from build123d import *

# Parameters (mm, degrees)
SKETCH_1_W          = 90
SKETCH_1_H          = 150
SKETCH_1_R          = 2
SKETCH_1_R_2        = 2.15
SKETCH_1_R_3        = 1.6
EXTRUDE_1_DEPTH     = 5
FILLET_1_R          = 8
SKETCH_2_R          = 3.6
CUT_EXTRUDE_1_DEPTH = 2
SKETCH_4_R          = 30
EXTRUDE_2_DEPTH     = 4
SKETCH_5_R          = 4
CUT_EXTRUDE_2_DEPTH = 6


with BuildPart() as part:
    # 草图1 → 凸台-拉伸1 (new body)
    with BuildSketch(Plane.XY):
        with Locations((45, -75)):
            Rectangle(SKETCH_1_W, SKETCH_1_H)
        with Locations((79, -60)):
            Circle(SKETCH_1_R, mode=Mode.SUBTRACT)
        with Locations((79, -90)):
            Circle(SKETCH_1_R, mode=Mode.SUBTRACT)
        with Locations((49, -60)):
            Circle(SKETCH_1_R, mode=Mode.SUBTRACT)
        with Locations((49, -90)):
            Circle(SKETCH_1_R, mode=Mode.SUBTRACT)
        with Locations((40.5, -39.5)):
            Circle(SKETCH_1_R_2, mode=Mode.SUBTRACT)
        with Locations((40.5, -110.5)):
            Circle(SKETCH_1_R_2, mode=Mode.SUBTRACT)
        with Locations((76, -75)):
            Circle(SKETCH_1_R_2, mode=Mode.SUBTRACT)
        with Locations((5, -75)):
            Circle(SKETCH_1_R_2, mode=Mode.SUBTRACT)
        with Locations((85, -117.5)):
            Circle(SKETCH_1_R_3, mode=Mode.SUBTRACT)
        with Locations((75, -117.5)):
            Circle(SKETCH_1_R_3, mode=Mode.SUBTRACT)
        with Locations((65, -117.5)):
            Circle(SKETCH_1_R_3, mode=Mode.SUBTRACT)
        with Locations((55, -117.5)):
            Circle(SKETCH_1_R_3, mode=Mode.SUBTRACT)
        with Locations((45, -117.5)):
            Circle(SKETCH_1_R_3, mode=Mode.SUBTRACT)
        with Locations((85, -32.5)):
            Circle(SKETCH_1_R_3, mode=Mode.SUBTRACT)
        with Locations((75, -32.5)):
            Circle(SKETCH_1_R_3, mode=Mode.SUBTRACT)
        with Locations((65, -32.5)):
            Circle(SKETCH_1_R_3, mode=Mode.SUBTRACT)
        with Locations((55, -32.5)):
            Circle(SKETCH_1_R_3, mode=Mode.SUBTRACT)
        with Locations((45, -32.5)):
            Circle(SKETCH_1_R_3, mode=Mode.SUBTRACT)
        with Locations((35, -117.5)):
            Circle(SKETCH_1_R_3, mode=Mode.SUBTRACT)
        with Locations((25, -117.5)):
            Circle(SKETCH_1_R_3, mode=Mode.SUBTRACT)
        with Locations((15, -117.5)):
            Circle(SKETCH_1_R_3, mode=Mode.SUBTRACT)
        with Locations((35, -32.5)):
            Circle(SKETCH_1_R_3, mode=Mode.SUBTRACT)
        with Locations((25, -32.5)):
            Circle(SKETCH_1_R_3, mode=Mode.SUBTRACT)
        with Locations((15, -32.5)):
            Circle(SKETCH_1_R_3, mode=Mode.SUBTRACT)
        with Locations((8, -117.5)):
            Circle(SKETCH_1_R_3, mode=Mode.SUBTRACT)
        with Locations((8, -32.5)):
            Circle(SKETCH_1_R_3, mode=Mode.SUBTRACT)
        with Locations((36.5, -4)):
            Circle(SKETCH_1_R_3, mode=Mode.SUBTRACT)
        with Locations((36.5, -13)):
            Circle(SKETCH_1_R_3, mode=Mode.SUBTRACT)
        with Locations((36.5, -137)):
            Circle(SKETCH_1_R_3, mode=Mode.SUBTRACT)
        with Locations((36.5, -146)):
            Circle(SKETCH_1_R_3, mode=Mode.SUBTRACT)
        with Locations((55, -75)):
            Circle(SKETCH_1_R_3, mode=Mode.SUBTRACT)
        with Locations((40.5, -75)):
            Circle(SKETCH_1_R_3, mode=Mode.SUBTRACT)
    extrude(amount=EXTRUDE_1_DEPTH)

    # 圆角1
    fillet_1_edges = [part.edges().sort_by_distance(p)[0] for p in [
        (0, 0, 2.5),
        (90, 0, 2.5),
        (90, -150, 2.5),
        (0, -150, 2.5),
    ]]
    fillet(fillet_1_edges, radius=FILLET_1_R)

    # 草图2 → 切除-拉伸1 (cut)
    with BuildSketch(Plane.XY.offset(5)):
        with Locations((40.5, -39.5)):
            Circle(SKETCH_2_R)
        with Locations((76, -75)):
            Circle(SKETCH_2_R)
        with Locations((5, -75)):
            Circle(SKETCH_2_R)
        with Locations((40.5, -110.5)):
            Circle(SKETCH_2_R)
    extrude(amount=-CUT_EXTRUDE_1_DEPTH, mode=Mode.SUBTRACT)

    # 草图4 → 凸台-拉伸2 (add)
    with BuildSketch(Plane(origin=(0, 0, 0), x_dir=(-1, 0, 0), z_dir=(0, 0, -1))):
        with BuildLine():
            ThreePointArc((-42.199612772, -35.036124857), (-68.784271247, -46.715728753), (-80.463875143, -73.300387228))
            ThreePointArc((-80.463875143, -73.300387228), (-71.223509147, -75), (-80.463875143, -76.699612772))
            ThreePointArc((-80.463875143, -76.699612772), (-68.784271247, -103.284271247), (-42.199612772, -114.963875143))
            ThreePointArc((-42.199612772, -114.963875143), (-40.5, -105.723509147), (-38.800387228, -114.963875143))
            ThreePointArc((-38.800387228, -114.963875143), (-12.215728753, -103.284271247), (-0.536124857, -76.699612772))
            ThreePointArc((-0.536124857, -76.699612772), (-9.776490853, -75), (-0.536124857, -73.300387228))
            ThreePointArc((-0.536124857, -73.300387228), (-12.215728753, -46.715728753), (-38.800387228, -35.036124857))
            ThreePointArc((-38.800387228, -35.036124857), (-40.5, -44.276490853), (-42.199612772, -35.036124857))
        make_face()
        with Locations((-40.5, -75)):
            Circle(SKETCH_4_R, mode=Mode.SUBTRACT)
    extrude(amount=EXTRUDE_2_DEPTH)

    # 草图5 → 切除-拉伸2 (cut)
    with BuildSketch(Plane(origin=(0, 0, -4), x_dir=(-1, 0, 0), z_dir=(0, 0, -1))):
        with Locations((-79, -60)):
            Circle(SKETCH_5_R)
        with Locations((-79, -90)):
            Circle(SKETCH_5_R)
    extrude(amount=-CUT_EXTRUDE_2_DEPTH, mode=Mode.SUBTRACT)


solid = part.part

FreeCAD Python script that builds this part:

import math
import FreeCAD as App
import Part
import Sketcher
from FreeCAD import Vector


def edges_at(feature, points):
    """Names of the edges that pass closest to the given points."""
    edges = feature.Shape.Edges
    near = lambda p: min(range(len(edges)), key=lambda i: edges[i].distToShape(Part.Vertex(*p))[0])
    return sorted({f"Edge{near(p) + 1}" for p in points})


def add_polygon(sketch, points):
    """Adds a closed chain of lines whose ends are joined by coincident constraints."""
    first, n = sketch.GeometryCount, len(points)
    for a, b in zip(points, points[1:] + points[:1]):
        sketch.addGeometry(Part.LineSegment(App.Vector(*a, 0), App.Vector(*b, 0)), False)
    for i in range(n):
        sketch.addConstraint(Sketcher.Constraint("Coincident", first + i, 2, first + (i + 1) % n, 1))

doc = App.newDocument("Part")
body = doc.addObject("PartDesign::Body", "Body")

sketch1 = body.newObject("Sketcher::SketchObject", "Sketch")
sketch1.AttachmentSupport = (doc.getObject("XY_Plane"), [""])
sketch1.MapMode = "FlatFace"
add_polygon(sketch1, [(0, 0), (0, -150), (90, -150), (90, 0)])
sketch1.addGeometry(Part.Circle(Vector(8, -117.5, 0), Vector(0, 0, 1), 1.6), False)
sketch1.addGeometry(Part.Circle(Vector(15, -117.5, 0), Vector(0, 0, 1), 1.6), False)
sketch1.addGeometry(Part.Circle(Vector(36.5, -146, 0), Vector(0, 0, 1), 1.6), False)
sketch1.addGeometry(Part.Circle(Vector(36.5, -137, 0), Vector(0, 0, 1), 1.6), False)
sketch1.addGeometry(Part.Circle(Vector(25, -117.5, 0), Vector(0, 0, 1), 1.6), False)
sketch1.addGeometry(Part.Circle(Vector(35, -117.5, 0), Vector(0, 0, 1), 1.6), False)
sketch1.addGeometry(Part.Circle(Vector(40.5, -110.5, 0), Vector(0, 0, 1), 2.1), False)
sketch1.addGeometry(Part.Circle(Vector(45, -117.5, 0), Vector(0, 0, 1), 1.6), False)
sketch1.addGeometry(Part.Circle(Vector(55, -117.5, 0), Vector(0, 0, 1), 1.6), False)
sketch1.addGeometry(Part.Circle(Vector(65, -117.5, 0), Vector(0, 0, 1), 1.6), False)
sketch1.addGeometry(Part.Circle(Vector(75, -117.5, 0), Vector(0, 0, 1), 1.6), False)
sketch1.addGeometry(Part.Circle(Vector(85, -117.5, 0), Vector(0, 0, 1), 1.6), False)
sketch1.addGeometry(Part.Circle(Vector(49, -90, 0), Vector(0, 0, 1), 2), False)
sketch1.addGeometry(Part.Circle(Vector(79, -90, 0), Vector(0, 0, 1), 2), False)
sketch1.addGeometry(Part.Circle(Vector(5, -75, 0), Vector(0, 0, 1), 2.1), False)
sketch1.addGeometry(Part.Circle(Vector(40.5, -75, 0), Vector(0, 0, 1), 1.6), False)
sketch1.addGeometry(Part.Circle(Vector(40.5, -39.5, 0), Vector(0, 0, 1), 2.1), False)
sketch1.addGeometry(Part.Circle(Vector(8, -32.5, 0), Vector(0, 0, 1), 1.6), False)
sketch1.addGeometry(Part.Circle(Vector(15, -32.5, 0), Vector(0, 0, 1), 1.6), False)
sketch1.addGeometry(Part.Circle(Vector(25, -32.5, 0), Vector(0, 0, 1), 1.6), False)
sketch1.addGeometry(Part.Circle(Vector(35, -32.5, 0), Vector(0, 0, 1), 1.6), False)
sketch1.addGeometry(Part.Circle(Vector(36.5, -13, 0), Vector(0, 0, 1), 1.6), False)
sketch1.addGeometry(Part.Circle(Vector(36.5, -4, 0), Vector(0, 0, 1), 1.6), False)
sketch1.addGeometry(Part.Circle(Vector(55, -75, 0), Vector(0, 0, 1), 1.6), False)
sketch1.addGeometry(Part.Circle(Vector(49, -60, 0), Vector(0, 0, 1), 2), False)
sketch1.addGeometry(Part.Circle(Vector(76, -75, 0), Vector(0, 0, 1), 2.1), False)
sketch1.addGeometry(Part.Circle(Vector(79, -60, 0), Vector(0, 0, 1), 2), False)
sketch1.addGeometry(Part.Circle(Vector(45, -32.5, 0), Vector(0, 0, 1), 1.6), False)
sketch1.addGeometry(Part.Circle(Vector(55, -32.5, 0), Vector(0, 0, 1), 1.6), False)
sketch1.addGeometry(Part.Circle(Vector(65, -32.5, 0), Vector(0, 0, 1), 1.6), False)
sketch1.addGeometry(Part.Circle(Vector(75, -32.5, 0), Vector(0, 0, 1), 1.6), False)
sketch1.addGeometry(Part.Circle(Vector(85, -32.5, 0), Vector(0, 0, 1), 1.6), False)
sketch1.addConstraint([
    Sketcher.Constraint("Vertical", 0),
    Sketcher.Constraint("Horizontal", 1),
    Sketcher.Constraint("Vertical", 2),
    Sketcher.Constraint("Horizontal", 3),
    Sketcher.Constraint("Coincident", 3, 2, -1, 1),
    Sketcher.Constraint("Equal", 4, 5),
    Sketcher.Constraint("Equal", 5, 6),
    Sketcher.Constraint("Equal", 6, 7),
    Sketcher.Constraint("Equal", 7, 8),
    Sketcher.Constraint("Equal", 8, 9),
    Sketcher.Constraint("Equal", 9, 11),
    Sketcher.Constraint("Equal", 11, 12),
    Sketcher.Constraint("Equal", 12, 13),
    Sketcher.Constraint("Equal", 13, 14),
    Sketcher.Constraint("Equal", 14, 15),
    Sketcher.Constraint("Equal", 16, 17),
    Sketcher.Constraint("Equal", 10, 18),
    Sketcher.Constraint("Equal", 15, 19),
    Sketcher.Constraint("Equal", 18, 20),
    Sketcher.Constraint("Equal", 19, 21),
    Sketcher.Constraint("Equal", 21, 22),
    Sketcher.Constraint("Equal", 22, 23),
    Sketcher.Constraint("Equal", 23, 24),
    Sketcher.Constraint("Equal", 24, 25),
    Sketcher.Constraint("Equal", 25, 26),
    Sketcher.Constraint("Equal", 26, 27),
    Sketcher.Constraint("Equal", 17, 28),
    Sketcher.Constraint("Equal", 20, 29),
    Sketcher.Constraint("Equal", 28, 30),
    Sketcher.Constraint("Equal", 27, 31),
    Sketcher.Constraint("Equal", 31, 32),
    Sketcher.Constraint("Equal", 32, 33),
    Sketcher.Constraint("Equal", 33, 34),
    Sketcher.Constraint("Equal", 34, 35),
    Sketcher.Constraint("Horizontal", 4, 3, 5, 3),
    Sketcher.Constraint("Horizontal", 5, 3, 8, 3),
    Sketcher.Constraint("Horizontal", 8, 3, 9, 3),
    Sketcher.Constraint("Horizontal", 9, 3, 11, 3),
    Sketcher.Constraint("Horizontal", 11, 3, 12, 3),
    Sketcher.Constraint("Horizontal", 12, 3, 13, 3),
    Sketcher.Constraint("Horizontal", 13, 3, 14, 3),
    Sketcher.Constraint("Horizontal", 14, 3, 15, 3),
    Sketcher.Constraint("Horizontal", 16, 3, 17, 3),
    Sketcher.Constraint("Horizontal", 18, 3, 19, 3),
    Sketcher.Constraint("Horizontal", 21, 3, 22, 3),
    Sketcher.Constraint("Horizontal", 22, 3, 23, 3),
    Sketcher.Constraint("Horizontal", 23, 3, 24, 3),
    Sketcher.Constraint("Horizontal", 19, 3, 27, 3),
    Sketcher.Constraint("Horizontal", 27, 3, 29, 3),
    Sketcher.Constraint("Horizontal", 28, 3, 30, 3),
    Sketcher.Constraint("Horizontal", 24, 3, 31, 3),
    Sketcher.Constraint("Horizontal", 31, 3, 32, 3),
    Sketcher.Constraint("Horizontal", 32, 3, 33, 3),
    Sketcher.Constraint("Horizontal", 33, 3, 34, 3),
    Sketcher.Constraint("Horizontal", 34, 3, 35, 3),
    Sketcher.Constraint("Vertical", 6, 3, 7, 3),
    Sketcher.Constraint("Vertical", 10, 3, 19, 3),
    Sketcher.Constraint("Vertical", 19, 3, 20, 3),
    Sketcher.Constraint("Vertical", 4, 3, 21, 3),
    Sketcher.Constraint("Vertical", 5, 3, 22, 3),
    Sketcher.Constraint("Vertical", 8, 3, 23, 3),
    Sketcher.Constraint("Vertical", 9, 3, 24, 3),
    Sketcher.Constraint("Vertical", 7, 3, 25, 3),
    Sketcher.Constraint("Vertical", 25, 3, 26, 3),
    Sketcher.Constraint("Vertical", 12, 3, 27, 3),
    Sketcher.Constraint("Vertical", 16, 3, 28, 3),
    Sketcher.Constraint("Vertical", 17, 3, 30, 3),
    Sketcher.Constraint("Vertical", 11, 3, 31, 3),
    Sketcher.Constraint("Vertical", 27, 3, 32, 3),
    Sketcher.Constraint("Vertical", 13, 3, 33, 3),
    Sketcher.Constraint("Vertical", 14, 3, 34, 3),
    Sketcher.Constraint("Vertical", 15, 3, 35, 3),
    Sketcher.Constraint("Diameter", 16, 4.0),
    Sketcher.Constraint("Diameter", 4, 3.2),
    Sketcher.Constraint("Diameter", 10, 4.3),
    Sketcher.Constraint("DistanceX", 1, 1, 1, 2, 90.0),
    Sketcher.Constraint("DistanceY", 0, 2, 0, 1, 150.0),
    Sketcher.Constraint("DistanceX", -1, 1, 4, 3, 8.0),
    Sketcher.Constraint("DistanceX", -1, 1, 5, 3, 15.0),
    Sketcher.Constraint("DistanceY", 6, 3, -1, 1, 146.0),
    Sketcher.Constraint("DistanceY", 7, 3, -1, 1, 137.0),
    Sketcher.Constraint("DistanceX", -1, 1, 8, 3, 25.0),
    Sketcher.Constraint("DistanceX", -1, 1, 9, 3, 35.0),
    Sketcher.Constraint("DistanceX", -1, 1, 11, 3, 45.0),
    Sketcher.Constraint("DistanceX", -1, 1, 12, 3, 55.0),
    Sketcher.Constraint("DistanceX", -1, 1, 13, 3, 65.0),
    Sketcher.Constraint("DistanceX", -1, 1, 14, 3, 75.0),
    Sketcher.Constraint("DistanceX", -1, 1, 15, 3, 85.0),
    Sketcher.Constraint("DistanceX", -1, 1, 16, 3, 49.0),
    Sketcher.Constraint("DistanceY", 16, 3, -1, 1, 90.0),
    Sketcher.Constraint("DistanceX", -1, 1, 17, 3, 79.0),
    Sketcher.Constraint("DistanceX", -1, 1, 18, 3, 5.0),
    Sketcher.Constraint("DistanceY", 18, 3, -1, 1, 75.0),
    Sketcher.Constraint("DistanceY", 25, 3, -1, 1, 13.0),
    Sketcher.Constraint("DistanceY", 26, 3, -1, 1, 4.0),
    Sketcher.Constraint("DistanceY", 28, 3, -1, 1, 60.0),
    Sketcher.Constraint("DistanceX", -1, 1, 29, 3, 76.0),
    Sketcher.Constraint("DistanceY", 9, 3, 10, 3, 7.0),
    Sketcher.Constraint("DistanceX", 7, 3, 10, 3, 4.0),
    Sketcher.Constraint("DistanceY", 10, 3, 20, 3, 71.0),
    Sketcher.Constraint("DistanceY", 20, 3, 21, 3, 7.0),
    Sketcher.Constraint("DistanceY", 4, 3, -1, 1, 117.5),
    Sketcher.Constraint("DistanceX", -1, 1, 6, 3, 36.5),
])
pad1 = body.newObject("PartDesign::Pad", "Pad")
pad1.Profile = sketch1
pad1.Length = 5
doc.recompute()

fillet = body.newObject("PartDesign::Fillet", "Fillet")
fillet.Base = (pad1, edges_at(pad1, [
    (0, 0, 2.5),
    (90, 0, 2.5),
    (90, -150, 2.5),
    (0, -150, 2.5),
]))
fillet.Radius = 8

sketch2 = body.newObject("Sketcher::SketchObject", "Sketch001")
sketch2.AttachmentSupport = (doc.getObject("XY_Plane"), [""])
sketch2.MapMode = "FlatFace"
sketch2.AttachmentOffset = App.Placement(Vector(0, 0, 5), App.Rotation())
sketch2.addGeometry([
    Part.Circle(Vector(40.5, -39.5, 0), Vector(0, 0, 1), 3.6),
    Part.Circle(Vector(76, -75, 0), Vector(0, 0, 1), 3.6),
    Part.Circle(Vector(5, -75, 0), Vector(0, 0, 1), 3.6),
    Part.Circle(Vector(40.5, -110.5, 0), Vector(0, 0, 1), 3.6),
], False)
sketch2.addConstraint([
    Sketcher.Constraint("Equal", 0, 1),
    Sketcher.Constraint("Equal", 1, 2),
    Sketcher.Constraint("Equal", 2, 3),
    Sketcher.Constraint("Horizontal", 1, 3, 2, 3),
    Sketcher.Constraint("Vertical", 0, 3, 3, 3),
    Sketcher.Constraint("Diameter", 0, 7.2),
    Sketcher.Constraint("DistanceX", -1, 1, 1, 3, 76.0),
    Sketcher.Constraint("DistanceY", 1, 3, -1, 1, 75.0),
    Sketcher.Constraint("DistanceX", -1, 1, 2, 3, 5.0),
    Sketcher.Constraint("DistanceY", 3, 3, 0, 3, 71.0),
    Sketcher.Constraint("DistanceX", -1, 1, 0, 3, 40.5),
    Sketcher.Constraint("DistanceY", 0, 3, -1, 1, 39.5),
])
pocket1 = body.newObject("PartDesign::Pocket", "Pocket")
pocket1.Profile = sketch2
pocket1.Length = 2

sketch3 = body.newObject("Sketcher::SketchObject", "Sketch002")
sketch3.AttachmentSupport = (doc.getObject("XY_Plane"), [""])
sketch3.MapMode = "FlatFace"
sketch3.addGeometry([
    Part.ArcOfCircle(Part.Circle(Vector(40.5, -75, 0), Vector(0, 0, 1), 40), math.radians(2), math.radians(88)),
    Part.ArcOfCircle(Part.Circle(Vector(76, -75, 0), Vector(0, 0, 1), 4.8), math.radians(21), math.radians(339)),
    Part.ArcOfCircle(Part.Circle(Vector(40.5, -75, 0), Vector(0, 0, 1), 40), math.radians(-88), math.radians(-2)),
    Part.ArcOfCircle(Part.Circle(Vector(40.5, -110.5, 0), Vector(0, 0, 1), 4.8), math.radians(-69), math.radians(249)),
    Part.ArcOfCircle(Part.Circle(Vector(40.5, -75, 0), Vector(0, 0, 1), 40), math.radians(-178), math.radians(-92)),
    Part.ArcOfCircle(Part.Circle(Vector(5, -75, 0), Vector(0, 0, 1), 4.8), math.radians(-159), math.radians(159)),
    Part.ArcOfCircle(Part.Circle(Vector(40.5, -75, 0), Vector(0, 0, 1), 40), math.radians(92), math.radians(178)),
    Part.ArcOfCircle(Part.Circle(Vector(40.5, -39.5, 0), Vector(0, 0, 1), 4.8), math.radians(111), math.radians(429)),
    Part.Circle(Vector(40.5, -75, 0), Vector(0, 0, 1), 30),
], False)
sketch3.addConstraint([
    Sketcher.Constraint("Coincident", 0, 1, 1, 1),
    Sketcher.Constraint("Coincident", 1, 2, 2, 2),
    Sketcher.Constraint("Coincident", 2, 1, 3, 1),
    Sketcher.Constraint("Coincident", 3, 2, 4, 2),
    Sketcher.Constraint("Coincident", 4, 1, 5, 1),
    Sketcher.Constraint("Coincident", 5, 2, 6, 2),
    Sketcher.Constraint("Coincident", 6, 1, 7, 1),
    Sketcher.Constraint("Coincident", 7, 2, 0, 2),
    Sketcher.Constraint("Coincident", 2, 3, 0, 3),
    Sketcher.Constraint("Coincident", 4, 3, 0, 3),
    Sketcher.Constraint("Coincident", 6, 3, 0, 3),
    Sketcher.Constraint("Coincident", 8, 3, 0, 3),
    Sketcher.Constraint("Equal", 0, 2),
    Sketcher.Constraint("Equal", 1, 3),
    Sketcher.Constraint("Equal", 2, 4),
    Sketcher.Constraint("Equal", 3, 5),
    Sketcher.Constraint("Equal", 4, 6),
    Sketcher.Constraint("Equal", 5, 7),
    Sketcher.Constraint("Horizontal", 0, 3, 1, 3),
    Sketcher.Constraint("Horizontal", 4, 3, 5, 3),
    Sketcher.Constraint("Horizontal", 2, 1, 3, 2),
    Sketcher.Constraint("Horizontal", 1, 2, 4, 1),
    Sketcher.Constraint("Horizontal", 6, 1, 7, 2),
    Sketcher.Constraint("Vertical", 3, 2, 6, 1),
    Sketcher.Constraint("Diameter", 8, 60.0),
    Sketcher.Constraint("Radius", 0, 40.0),
    Sketcher.Constraint("DistanceY", 0, 3, -1, 1, 75.0),
    Sketcher.Constraint("DistanceX", -1, 1, 1, 3, 76.0),
    Sketcher.Constraint("DistanceX", -1, 1, 5, 3, 5.0),
    Sketcher.Constraint("DistanceY", 3, 3, -1, 1, 110.5),
    Sketcher.Constraint("Radius", 1, 4.776491),
])
pad2 = body.newObject("PartDesign::Pad", "Pad001")
pad2.Profile = sketch3
pad2.Length = 4
pad2.Reversed = True

sketch4 = body.newObject("Sketcher::SketchObject", "Sketch003")
sketch4.AttachmentSupport = (doc.getObject("XY_Plane"), [""])
sketch4.MapMode = "FlatFace"
sketch4.AttachmentOffset = App.Placement(Vector(0, 0, -4), App.Rotation())
sketch4.addGeometry([
    Part.Circle(Vector(79, -60, 0), Vector(0, 0, 1), 4),
    Part.Circle(Vector(79, -90, 0), Vector(0, 0, 1), 4),
], False)
sketch4.addConstraint([
    Sketcher.Constraint("Equal", 0, 1),
    Sketcher.Constraint("Vertical", 0, 3, 1, 3),
    Sketcher.Constraint("Diameter", 0, 8.0),
    Sketcher.Constraint("DistanceX", -1, 1, 0, 3, 79.0),
    Sketcher.Constraint("DistanceY", 0, 3, -1, 1, 60.0),
    Sketcher.Constraint("DistanceY", 1, 3, -1, 1, 90.0),
])
pocket2 = body.newObject("PartDesign::Pocket", "Pocket001")
pocket2.Profile = sketch4
pocket2.Length = 6
pocket2.Reversed = True

doc.recompute()
